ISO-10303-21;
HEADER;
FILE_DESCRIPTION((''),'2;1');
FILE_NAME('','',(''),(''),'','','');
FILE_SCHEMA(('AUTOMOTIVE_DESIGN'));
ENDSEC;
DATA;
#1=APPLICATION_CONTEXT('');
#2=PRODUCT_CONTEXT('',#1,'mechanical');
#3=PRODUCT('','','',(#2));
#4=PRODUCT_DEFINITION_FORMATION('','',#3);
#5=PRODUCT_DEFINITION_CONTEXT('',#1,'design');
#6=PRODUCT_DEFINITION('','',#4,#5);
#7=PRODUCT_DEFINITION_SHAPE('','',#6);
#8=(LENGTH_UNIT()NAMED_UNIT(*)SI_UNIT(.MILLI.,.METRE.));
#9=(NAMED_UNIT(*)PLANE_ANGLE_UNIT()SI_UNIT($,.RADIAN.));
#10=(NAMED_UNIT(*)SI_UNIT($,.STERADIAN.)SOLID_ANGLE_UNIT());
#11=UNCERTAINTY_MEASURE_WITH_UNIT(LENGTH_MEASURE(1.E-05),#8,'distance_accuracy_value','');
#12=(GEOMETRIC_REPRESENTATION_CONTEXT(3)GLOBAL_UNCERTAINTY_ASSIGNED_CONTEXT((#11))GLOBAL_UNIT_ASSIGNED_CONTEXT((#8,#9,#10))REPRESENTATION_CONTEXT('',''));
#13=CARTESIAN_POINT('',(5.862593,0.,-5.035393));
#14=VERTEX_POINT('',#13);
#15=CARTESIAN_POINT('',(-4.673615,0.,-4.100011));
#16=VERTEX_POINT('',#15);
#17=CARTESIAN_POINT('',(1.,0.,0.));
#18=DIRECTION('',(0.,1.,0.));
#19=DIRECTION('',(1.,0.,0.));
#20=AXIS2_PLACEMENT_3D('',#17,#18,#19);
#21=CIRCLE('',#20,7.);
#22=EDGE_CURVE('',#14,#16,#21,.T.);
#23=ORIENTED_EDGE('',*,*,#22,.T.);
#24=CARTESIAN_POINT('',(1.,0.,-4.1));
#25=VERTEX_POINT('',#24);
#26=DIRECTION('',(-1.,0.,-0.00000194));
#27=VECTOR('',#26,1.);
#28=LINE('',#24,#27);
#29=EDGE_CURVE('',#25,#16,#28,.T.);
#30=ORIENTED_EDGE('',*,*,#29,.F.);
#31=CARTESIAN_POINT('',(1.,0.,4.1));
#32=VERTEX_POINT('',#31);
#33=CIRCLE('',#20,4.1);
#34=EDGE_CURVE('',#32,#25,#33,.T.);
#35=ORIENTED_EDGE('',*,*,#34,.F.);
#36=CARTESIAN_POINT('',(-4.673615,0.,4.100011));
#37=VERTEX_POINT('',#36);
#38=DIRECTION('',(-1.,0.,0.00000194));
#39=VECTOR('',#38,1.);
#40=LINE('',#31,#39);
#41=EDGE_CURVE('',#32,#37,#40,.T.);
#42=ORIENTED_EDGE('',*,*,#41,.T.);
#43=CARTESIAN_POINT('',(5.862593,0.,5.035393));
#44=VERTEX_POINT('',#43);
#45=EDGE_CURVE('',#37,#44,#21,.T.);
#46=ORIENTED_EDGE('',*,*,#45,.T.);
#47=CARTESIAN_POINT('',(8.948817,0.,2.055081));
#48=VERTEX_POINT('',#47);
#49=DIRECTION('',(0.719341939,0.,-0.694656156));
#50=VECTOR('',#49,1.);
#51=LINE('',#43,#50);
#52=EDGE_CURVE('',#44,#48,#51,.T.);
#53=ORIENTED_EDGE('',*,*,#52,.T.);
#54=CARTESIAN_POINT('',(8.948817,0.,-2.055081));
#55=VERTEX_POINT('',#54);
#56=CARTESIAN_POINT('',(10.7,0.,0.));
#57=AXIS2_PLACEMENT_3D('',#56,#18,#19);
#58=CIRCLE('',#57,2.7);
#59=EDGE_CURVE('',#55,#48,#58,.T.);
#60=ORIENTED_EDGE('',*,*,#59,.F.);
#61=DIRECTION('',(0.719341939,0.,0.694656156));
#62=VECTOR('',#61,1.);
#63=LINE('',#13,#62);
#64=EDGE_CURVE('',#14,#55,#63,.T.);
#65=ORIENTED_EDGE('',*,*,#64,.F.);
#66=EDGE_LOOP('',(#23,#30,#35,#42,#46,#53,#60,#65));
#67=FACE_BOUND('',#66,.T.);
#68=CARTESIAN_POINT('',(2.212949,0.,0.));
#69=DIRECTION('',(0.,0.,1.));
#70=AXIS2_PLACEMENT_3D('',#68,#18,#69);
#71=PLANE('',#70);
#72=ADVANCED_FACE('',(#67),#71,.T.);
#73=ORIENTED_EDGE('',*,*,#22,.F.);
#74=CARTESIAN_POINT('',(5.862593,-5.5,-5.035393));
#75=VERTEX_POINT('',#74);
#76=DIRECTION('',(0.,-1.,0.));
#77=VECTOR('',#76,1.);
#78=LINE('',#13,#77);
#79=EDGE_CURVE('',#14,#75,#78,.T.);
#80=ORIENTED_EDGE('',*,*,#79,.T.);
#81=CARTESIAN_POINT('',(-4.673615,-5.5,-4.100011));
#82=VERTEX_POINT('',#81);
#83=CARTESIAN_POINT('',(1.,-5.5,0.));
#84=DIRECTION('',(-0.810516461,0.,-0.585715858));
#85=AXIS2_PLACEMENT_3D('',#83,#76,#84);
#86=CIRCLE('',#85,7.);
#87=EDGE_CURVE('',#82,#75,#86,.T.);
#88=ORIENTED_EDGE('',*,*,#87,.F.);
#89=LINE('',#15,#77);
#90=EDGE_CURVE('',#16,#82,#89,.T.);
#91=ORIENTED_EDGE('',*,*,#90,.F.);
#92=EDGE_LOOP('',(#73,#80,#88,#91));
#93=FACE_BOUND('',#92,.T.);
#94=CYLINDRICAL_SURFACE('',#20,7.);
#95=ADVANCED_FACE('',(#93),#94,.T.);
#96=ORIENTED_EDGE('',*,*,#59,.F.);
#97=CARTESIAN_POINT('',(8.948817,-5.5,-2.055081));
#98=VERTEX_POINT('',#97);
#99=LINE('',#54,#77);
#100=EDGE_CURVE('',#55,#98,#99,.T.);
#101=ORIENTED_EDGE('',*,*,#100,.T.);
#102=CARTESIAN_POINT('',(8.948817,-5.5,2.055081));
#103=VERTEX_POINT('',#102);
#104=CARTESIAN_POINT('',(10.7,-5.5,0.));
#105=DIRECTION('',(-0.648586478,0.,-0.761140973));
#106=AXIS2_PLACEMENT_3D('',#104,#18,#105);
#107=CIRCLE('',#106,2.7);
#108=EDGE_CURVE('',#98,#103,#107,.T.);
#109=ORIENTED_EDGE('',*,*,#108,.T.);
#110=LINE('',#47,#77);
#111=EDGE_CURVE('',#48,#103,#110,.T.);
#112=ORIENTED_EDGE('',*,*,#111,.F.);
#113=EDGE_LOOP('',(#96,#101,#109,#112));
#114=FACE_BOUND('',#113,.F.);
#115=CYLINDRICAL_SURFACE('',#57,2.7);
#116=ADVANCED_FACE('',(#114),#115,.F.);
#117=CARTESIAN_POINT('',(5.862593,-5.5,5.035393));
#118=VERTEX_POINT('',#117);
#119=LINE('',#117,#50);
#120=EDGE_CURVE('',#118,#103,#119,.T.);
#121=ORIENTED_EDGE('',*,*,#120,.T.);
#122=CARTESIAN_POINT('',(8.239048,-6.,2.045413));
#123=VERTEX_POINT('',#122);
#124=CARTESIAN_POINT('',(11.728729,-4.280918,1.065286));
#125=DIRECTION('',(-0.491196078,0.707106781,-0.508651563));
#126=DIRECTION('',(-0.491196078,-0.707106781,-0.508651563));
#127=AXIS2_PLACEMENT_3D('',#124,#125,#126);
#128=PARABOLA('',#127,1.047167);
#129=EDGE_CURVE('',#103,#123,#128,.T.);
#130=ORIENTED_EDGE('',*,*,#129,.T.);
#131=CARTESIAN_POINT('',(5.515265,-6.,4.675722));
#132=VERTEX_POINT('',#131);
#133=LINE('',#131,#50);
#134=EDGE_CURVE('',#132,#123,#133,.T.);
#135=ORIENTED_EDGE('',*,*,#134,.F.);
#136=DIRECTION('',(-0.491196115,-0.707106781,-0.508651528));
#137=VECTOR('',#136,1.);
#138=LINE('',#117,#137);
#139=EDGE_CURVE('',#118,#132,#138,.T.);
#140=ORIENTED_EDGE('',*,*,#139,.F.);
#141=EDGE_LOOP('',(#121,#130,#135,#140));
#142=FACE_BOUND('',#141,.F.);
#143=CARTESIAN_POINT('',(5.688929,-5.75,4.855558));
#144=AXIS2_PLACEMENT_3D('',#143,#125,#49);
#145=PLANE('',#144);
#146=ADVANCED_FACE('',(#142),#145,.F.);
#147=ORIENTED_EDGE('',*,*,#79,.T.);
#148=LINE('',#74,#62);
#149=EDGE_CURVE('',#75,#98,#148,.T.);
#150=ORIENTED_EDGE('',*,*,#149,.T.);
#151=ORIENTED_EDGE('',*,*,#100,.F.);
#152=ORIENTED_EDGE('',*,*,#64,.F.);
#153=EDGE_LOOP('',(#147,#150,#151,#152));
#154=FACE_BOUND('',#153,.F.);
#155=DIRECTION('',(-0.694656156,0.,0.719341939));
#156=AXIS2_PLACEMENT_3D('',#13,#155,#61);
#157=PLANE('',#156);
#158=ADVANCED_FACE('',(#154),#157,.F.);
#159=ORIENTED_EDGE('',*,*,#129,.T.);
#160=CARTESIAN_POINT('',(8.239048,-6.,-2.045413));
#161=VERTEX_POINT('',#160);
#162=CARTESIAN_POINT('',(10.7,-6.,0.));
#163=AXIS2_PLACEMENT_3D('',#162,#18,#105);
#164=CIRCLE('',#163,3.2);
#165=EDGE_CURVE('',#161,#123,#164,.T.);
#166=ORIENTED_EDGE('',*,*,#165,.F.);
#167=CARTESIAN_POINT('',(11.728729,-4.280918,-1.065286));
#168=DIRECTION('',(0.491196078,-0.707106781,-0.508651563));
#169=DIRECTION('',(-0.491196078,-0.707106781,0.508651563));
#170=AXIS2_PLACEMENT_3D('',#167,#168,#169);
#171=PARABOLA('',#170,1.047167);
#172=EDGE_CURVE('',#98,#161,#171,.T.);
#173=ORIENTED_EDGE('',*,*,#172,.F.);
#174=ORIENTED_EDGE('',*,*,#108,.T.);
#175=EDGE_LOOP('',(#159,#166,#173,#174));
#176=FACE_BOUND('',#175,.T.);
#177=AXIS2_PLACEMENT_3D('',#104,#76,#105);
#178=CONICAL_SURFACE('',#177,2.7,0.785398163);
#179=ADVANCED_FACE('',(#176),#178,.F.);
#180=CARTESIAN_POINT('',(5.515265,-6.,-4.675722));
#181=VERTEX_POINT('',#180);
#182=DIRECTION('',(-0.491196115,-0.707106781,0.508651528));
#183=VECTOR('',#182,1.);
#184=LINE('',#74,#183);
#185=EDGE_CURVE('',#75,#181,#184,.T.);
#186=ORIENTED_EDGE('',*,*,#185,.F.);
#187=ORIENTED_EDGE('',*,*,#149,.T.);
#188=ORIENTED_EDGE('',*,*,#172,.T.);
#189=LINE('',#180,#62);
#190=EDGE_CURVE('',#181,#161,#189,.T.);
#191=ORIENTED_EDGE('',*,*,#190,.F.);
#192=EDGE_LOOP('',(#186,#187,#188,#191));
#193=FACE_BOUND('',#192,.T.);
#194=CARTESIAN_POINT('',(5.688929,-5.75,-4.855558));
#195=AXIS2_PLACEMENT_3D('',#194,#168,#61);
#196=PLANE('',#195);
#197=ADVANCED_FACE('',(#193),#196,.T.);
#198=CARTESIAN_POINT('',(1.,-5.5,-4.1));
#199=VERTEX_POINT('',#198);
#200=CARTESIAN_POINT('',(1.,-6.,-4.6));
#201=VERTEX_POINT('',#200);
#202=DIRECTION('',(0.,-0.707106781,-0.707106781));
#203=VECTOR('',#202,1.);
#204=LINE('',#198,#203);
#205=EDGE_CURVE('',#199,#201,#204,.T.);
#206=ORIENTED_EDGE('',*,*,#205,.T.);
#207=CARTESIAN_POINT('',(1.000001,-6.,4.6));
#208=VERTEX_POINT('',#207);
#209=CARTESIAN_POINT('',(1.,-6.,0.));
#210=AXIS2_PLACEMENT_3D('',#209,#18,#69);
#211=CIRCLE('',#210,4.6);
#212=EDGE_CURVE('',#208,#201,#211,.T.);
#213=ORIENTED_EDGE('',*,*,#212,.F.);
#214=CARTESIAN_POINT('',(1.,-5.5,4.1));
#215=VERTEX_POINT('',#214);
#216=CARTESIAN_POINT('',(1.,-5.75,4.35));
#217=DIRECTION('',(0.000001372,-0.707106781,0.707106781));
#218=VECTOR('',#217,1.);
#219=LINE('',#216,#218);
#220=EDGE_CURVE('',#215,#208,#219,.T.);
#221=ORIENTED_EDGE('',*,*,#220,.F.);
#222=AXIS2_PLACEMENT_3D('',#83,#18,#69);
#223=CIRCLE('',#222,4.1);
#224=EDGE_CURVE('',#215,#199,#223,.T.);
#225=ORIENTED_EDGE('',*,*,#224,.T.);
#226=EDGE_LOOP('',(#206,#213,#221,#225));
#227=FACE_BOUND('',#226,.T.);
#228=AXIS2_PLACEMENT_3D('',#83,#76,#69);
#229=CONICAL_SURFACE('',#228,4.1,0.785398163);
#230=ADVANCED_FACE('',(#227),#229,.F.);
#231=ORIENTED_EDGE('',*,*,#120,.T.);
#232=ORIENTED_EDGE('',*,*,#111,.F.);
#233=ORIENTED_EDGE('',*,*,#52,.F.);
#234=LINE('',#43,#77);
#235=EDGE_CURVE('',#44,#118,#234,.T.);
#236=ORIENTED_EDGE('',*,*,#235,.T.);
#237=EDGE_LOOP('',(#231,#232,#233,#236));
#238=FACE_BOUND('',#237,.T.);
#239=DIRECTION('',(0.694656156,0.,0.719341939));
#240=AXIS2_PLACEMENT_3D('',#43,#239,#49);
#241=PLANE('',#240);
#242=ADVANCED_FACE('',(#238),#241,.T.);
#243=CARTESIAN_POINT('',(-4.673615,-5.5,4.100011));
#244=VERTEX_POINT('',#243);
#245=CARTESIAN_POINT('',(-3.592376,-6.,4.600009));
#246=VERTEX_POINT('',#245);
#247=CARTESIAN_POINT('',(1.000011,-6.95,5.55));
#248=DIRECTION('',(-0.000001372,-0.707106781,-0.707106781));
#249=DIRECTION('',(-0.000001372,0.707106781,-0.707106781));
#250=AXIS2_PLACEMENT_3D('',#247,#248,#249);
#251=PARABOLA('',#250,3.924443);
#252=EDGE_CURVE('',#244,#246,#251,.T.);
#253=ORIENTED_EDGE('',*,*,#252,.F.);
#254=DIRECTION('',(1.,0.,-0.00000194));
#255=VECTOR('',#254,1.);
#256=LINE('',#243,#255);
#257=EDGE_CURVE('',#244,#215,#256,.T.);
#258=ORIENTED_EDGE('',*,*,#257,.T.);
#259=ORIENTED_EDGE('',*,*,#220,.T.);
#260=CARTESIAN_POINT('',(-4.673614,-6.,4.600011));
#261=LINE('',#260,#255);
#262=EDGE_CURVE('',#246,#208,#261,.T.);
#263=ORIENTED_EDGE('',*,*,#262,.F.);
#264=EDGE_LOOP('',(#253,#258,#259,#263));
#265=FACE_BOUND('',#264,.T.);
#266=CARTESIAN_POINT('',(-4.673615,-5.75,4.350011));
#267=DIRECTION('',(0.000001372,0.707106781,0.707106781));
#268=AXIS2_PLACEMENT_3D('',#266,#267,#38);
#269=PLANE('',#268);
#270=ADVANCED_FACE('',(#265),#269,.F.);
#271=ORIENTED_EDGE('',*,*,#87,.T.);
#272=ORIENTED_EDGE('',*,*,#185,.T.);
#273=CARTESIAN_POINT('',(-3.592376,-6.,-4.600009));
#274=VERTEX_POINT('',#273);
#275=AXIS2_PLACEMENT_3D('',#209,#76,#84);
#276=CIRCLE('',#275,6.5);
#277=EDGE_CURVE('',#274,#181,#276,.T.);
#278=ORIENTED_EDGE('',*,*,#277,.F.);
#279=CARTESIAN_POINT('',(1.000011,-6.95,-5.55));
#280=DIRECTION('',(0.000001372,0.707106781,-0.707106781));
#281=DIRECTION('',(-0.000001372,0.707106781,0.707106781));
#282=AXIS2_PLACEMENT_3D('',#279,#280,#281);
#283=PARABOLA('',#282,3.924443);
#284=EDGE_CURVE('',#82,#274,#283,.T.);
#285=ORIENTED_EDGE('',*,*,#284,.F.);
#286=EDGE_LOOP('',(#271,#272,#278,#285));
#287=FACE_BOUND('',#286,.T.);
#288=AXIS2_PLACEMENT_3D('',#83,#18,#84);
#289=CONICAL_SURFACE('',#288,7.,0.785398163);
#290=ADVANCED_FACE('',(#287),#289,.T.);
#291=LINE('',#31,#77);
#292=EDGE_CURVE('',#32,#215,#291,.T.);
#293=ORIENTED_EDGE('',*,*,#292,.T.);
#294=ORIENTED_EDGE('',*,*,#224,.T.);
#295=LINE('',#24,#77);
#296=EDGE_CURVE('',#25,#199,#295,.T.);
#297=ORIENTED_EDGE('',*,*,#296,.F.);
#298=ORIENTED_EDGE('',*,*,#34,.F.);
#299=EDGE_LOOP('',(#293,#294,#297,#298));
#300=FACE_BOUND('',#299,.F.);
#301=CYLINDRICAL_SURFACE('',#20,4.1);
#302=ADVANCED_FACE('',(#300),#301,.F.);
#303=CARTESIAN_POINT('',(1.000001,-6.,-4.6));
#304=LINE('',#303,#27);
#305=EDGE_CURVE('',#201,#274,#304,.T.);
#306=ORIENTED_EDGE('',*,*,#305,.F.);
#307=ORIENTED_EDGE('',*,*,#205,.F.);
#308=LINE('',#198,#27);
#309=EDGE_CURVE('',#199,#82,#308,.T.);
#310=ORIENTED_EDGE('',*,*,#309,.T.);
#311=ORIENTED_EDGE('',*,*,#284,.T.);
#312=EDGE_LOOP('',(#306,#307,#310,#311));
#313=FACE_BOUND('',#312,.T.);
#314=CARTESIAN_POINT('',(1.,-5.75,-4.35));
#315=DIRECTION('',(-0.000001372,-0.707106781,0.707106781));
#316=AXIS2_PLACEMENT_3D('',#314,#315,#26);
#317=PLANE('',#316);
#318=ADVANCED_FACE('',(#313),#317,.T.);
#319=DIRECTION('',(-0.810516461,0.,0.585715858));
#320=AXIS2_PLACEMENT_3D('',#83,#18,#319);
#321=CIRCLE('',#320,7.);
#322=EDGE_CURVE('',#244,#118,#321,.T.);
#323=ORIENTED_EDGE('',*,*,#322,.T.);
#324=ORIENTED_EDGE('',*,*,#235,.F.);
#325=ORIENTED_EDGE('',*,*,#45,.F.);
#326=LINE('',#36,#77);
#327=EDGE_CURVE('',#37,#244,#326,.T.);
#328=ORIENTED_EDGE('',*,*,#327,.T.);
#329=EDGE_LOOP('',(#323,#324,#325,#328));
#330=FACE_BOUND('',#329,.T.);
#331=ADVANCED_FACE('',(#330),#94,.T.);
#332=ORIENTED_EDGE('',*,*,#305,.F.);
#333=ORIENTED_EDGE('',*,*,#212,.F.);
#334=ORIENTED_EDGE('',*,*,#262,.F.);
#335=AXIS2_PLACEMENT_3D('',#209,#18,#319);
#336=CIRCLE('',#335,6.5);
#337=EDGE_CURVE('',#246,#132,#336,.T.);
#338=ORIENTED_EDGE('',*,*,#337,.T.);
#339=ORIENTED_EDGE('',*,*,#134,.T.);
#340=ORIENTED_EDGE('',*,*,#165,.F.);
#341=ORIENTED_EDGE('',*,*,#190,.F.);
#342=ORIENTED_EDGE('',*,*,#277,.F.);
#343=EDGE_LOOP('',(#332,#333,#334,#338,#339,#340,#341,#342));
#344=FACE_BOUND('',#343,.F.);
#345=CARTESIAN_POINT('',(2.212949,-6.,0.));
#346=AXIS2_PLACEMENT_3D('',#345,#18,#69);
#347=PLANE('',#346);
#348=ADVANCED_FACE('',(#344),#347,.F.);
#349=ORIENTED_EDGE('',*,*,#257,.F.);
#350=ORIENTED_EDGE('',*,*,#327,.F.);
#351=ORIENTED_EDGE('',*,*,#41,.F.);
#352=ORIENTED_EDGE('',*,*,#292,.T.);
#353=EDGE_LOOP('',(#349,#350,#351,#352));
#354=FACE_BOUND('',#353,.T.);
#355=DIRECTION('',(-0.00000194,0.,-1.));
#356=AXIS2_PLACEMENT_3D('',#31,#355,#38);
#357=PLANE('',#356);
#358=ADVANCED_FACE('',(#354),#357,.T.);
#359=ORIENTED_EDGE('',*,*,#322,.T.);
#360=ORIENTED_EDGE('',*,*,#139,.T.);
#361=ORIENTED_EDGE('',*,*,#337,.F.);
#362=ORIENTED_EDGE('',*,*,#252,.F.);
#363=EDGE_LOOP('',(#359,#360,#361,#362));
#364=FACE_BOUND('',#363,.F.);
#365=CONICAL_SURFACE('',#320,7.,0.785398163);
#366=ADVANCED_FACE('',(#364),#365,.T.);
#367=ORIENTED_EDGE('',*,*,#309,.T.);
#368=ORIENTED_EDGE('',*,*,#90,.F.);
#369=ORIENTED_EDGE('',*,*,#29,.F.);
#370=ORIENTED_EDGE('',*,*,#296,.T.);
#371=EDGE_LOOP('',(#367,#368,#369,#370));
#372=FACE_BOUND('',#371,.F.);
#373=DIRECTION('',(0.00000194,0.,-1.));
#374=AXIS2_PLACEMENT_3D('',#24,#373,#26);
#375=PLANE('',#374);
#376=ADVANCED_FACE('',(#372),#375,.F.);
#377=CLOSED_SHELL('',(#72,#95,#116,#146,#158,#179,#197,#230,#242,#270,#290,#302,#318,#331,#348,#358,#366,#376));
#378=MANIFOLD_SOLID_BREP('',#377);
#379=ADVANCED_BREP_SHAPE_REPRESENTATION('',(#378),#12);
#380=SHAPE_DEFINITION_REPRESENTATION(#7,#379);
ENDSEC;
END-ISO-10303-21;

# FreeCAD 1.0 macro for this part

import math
import FreeCAD as App
import Part
import Sketcher
Q = App.Units.Quantity


def edges_at(feature, points):
    """Names of the edges that pass closest to the given points."""
    edges = feature.Shape.Edges
    near = lambda p: min(range(len(edges)), key=lambda i: edges[i].distToShape(Part.Vertex(*p))[0])
    return sorted({f"Edge{near(p) + 1}" for p in points})

doc = App.newDocument("Part")
body = doc.addObject("PartDesign::Body", "Body")

sketch1 = body.newObject("Sketcher::SketchObject", "Sketch")
sketch1.AttachmentSupport = (doc.getObject("XZ_Plane"), [""])
sketch1.MapMode = "FlatFace"
sketch1.addGeometry(Part.ArcOfCircle(Part.Circle(App.Vector(1, 0, 0), App.Vector(0, 0, 1), 7), math.radians(46), math.radians(144)), False)
sketch1.addGeometry(Part.LineSegment(App.Vector(-4.7, 4.1, 0), App.Vector(1, 4.1, 0)), False)
sketch1.addGeometry(Part.ArcOfCircle(Part.Circle(App.Vector(1, 0, 0), App.Vector(0, 0, 1), 4.1), math.radians(-90), math.radians(90)), False)
sketch1.addGeometry(Part.LineSegment(App.Vector(1, -4.1, 0), App.Vector(-4.7, -4.1, 0)), False)
sketch1.addGeometry(Part.ArcOfCircle(Part.Circle(App.Vector(1, 0, 0), App.Vector(0, 0, 1), 7), math.radians(-144), math.radians(-46)), False)
sketch1.addGeometry(Part.LineSegment(App.Vector(5.9, -5, 0), App.Vector(8.9, -2.1, 0)), False)
sketch1.addGeometry(Part.ArcOfCircle(Part.Circle(App.Vector(10.7, 0, 0), App.Vector(0, 0, 1), 2.7), math.radians(130), math.radians(230)), False)
sketch1.addGeometry(Part.LineSegment(App.Vector(8.9, 2.1, 0), App.Vector(5.9, 5, 0)), False)
sketch1.addConstraint(Sketcher.Constraint("Coincident", 0, 2, 1, 1))
sketch1.addConstraint(Sketcher.Constraint("Tangent", 1, 2, 2, 2))
sketch1.addConstraint(Sketcher.Constraint("Tangent", 2, 1, 3, 1))
sketch1.addConstraint(Sketcher.Constraint("Coincident", 3, 2, 4, 1))
sketch1.addConstraint(Sketcher.Constraint("Tangent", 4, 2, 5, 1))
sketch1.addConstraint(Sketcher.Constraint("Coincident", 5, 2, 6, 2))
sketch1.addConstraint(Sketcher.Constraint("Coincident", 6, 1, 7, 1))
sketch1.addConstraint(Sketcher.Constraint("Tangent", 7, 2, 0, 1))
sketch1.addConstraint(Sketcher.Constraint("Horizontal", 1))
sketch1.addConstraint(Sketcher.Constraint("Horizontal", 3))
sketch1.addConstraint(Sketcher.Constraint("Coincident", 2, 3, 0, 3))
sketch1.addConstraint(Sketcher.Constraint("Coincident", 4, 3, 0, 3))
sketch1.addConstraint(Sketcher.Constraint("Equal", 0, 4))
sketch1.addConstraint(Sketcher.Constraint("Symmetric", 5, 2, 6, 1, -1))
sketch1.addConstraint(Sketcher.Constraint("PointOnObject", 0, 3, -1))
sketch1.addConstraint(Sketcher.Constraint("Radius", 0, 7.0))
sketch1.addConstraint(Sketcher.Constraint("Radius", 2, 4.1))
sketch1.addConstraint(Sketcher.Constraint("Radius", 6, 2.7))
sketch1.addConstraint(Sketcher.Constraint("Angle", 5, Q("44 deg")))
sketch1.addConstraint(Sketcher.Constraint("DistanceX", -1, 1, 0, 3, 1.0))
sketch1.addConstraint(Sketcher.Constraint("DistanceX", -1, 1, 6, 3, 10.7))
pad1 = body.newObject("PartDesign::Pad", "Pad")
pad1.Profile = sketch1
pad1.Length = 6
doc.recompute()

chamfer = body.newObject("PartDesign::Chamfer", "Chamfer")
chamfer.Base = (pad1, edges_at(pad1, [
    (5.1, -6, 0),
    (-1.837, -6, 4.1),
    (-1.837, -6, -4.1),
    (0.381, -6, 6.973),
    (7.406, -6, 3.545),
    (7.406, -6, -3.545),
    (0.381, -6, -6.973),
    (8, -6, 0),
]))
chamfer.Size = 0.5

doc.recompute()
